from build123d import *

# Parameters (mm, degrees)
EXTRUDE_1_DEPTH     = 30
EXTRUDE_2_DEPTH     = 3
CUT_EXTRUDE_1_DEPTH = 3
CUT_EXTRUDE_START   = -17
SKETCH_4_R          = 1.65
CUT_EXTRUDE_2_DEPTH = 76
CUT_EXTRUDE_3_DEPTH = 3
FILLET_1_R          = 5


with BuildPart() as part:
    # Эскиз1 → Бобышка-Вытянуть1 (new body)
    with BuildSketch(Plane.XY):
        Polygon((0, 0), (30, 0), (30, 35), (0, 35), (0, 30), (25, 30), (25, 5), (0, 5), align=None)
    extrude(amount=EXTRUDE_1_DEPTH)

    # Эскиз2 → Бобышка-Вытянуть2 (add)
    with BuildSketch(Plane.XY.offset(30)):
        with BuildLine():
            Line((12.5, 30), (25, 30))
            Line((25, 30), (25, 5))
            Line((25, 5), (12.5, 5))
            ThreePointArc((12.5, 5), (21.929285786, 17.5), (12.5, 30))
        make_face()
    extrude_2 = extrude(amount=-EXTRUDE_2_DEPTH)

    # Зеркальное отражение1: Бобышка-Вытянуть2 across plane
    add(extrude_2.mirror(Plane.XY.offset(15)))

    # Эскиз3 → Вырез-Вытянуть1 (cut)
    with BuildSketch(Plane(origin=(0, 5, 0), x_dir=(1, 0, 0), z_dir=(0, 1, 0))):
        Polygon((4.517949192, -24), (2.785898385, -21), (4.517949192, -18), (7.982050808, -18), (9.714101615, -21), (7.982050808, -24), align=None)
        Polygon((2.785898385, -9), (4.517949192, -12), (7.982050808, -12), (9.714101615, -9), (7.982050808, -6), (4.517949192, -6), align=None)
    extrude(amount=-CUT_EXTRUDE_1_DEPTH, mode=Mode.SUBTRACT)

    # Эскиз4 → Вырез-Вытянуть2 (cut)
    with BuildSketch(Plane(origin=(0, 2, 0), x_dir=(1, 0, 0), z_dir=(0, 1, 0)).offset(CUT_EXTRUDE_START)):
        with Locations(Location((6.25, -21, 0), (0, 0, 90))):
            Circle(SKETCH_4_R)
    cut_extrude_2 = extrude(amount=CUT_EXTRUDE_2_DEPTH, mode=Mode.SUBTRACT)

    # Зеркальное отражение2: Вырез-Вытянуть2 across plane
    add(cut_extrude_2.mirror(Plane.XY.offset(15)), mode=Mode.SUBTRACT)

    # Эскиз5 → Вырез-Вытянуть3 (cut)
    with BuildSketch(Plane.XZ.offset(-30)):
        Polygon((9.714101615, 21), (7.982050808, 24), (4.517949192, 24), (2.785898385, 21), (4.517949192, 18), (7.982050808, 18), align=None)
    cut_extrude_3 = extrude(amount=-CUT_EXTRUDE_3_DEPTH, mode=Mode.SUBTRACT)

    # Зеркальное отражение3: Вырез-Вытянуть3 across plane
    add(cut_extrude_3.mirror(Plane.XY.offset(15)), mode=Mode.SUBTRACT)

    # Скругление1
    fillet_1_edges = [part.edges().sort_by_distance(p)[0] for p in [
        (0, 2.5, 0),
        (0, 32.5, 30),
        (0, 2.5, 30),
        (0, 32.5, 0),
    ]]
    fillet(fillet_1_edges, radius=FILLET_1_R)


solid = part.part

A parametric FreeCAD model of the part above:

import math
import FreeCAD as App
import Part
import Sketcher
from FreeCAD import Vector
Q = App.Units.Quantity


def edges_at(feature, points):
    """Names of the edges that pass closest to the given points."""
    edges = feature.Shape.Edges
    near = lambda p: min(range(len(edges)), key=lambda i: edges[i].distToShape(Part.Vertex(*p))[0])
    return sorted({f"Edge{near(p) + 1}" for p in points})


def add_polygon(sketch, points):
    """Adds a closed chain of lines whose ends are joined by coincident constraints."""
    first, n = sketch.GeometryCount, len(points)
    for a, b in zip(points, points[1:] + points[:1]):
        sketch.addGeometry(Part.LineSegment(App.Vector(*a, 0), App.Vector(*b, 0)), False)
    for i in range(n):
        sketch.addConstraint(Sketcher.Constraint("Coincident", first + i, 2, first + (i + 1) % n, 1))

doc = App.newDocument("Part")
body = doc.addObject("PartDesign::Body", "Body")

# Sketch on XY plane
sketch1 = body.newObject("Sketcher::SketchObject", "Sketch")
sketch1.AttachmentSupport = (doc.getObject("XY_Plane"), [""])
sketch1.MapMode = "FlatFace"
add_polygon(sketch1, [(0, 0), (30, 0), (30, 35), (0, 35), (0, 30), (25, 30), (25, 5), (0, 5)])  # lines 0-7
sketch1.addConstraint([
    Sketcher.Constraint("Horizontal", 0),
    Sketcher.Constraint("Vertical", 1),
    Sketcher.Constraint("Horizontal", 2),
    Sketcher.Constraint("Vertical", 3),
    Sketcher.Constraint("Horizontal", 4),
    Sketcher.Constraint("Vertical", 5),
    Sketcher.Constraint("Horizontal", 6),
    Sketcher.Constraint("Vertical", 7),
    Sketcher.Constraint("Coincident", 7, 2, -1, 1),
    Sketcher.Constraint("PointOnObject", 2, 2, -2),
    Sketcher.Constraint("Equal", 6, 5),
    Sketcher.Constraint("Equal", 3, 7),
    Sketcher.Constraint("DistanceX", 0, 1, 0, 2, 30.0),
    Sketcher.Constraint("DistanceX", 4, 1, 4, 2, 25.0),
    Sketcher.Constraint("DistanceY", 1, 1, 1, 2, 35.0),
])
pad1 = body.newObject("PartDesign::Pad", "Pad")
pad1.Profile = sketch1
pad1.Length = 30

# Sketch on XY plane
sketch2 = body.newObject("Sketcher::SketchObject", "Sketch001")
sketch2.AttachmentSupport = (doc.getObject("XY_Plane"), [""])
sketch2.MapMode = "FlatFace"
sketch2.AttachmentOffset = App.Placement(Vector(0, 0, 30), App.Rotation())
sketch2.addGeometry([
    Part.LineSegment(Vector(25, 30, 0), Vector(12, 30, 0)),
    Part.ArcOfCircle(Part.Circle(Vector(9, 18, 0), Vector(0, 0, 1), 13), math.radians(-74), math.radians(74)),
    Part.LineSegment(Vector(12, 5, 0), Vector(25, 5, 0)),
    Part.LineSegment(Vector(25, 5, 0), Vector(25, 30, 0)),
], False)
sketch2.addConstraint([
    Sketcher.Constraint("Coincident", 0, 2, 1, 2),
    Sketcher.Constraint("Coincident", 1, 1, 2, 1),
    Sketcher.Constraint("Coincident", 2, 2, 3, 1),
    Sketcher.Constraint("Coincident", 3, 2, 0, 1),
    Sketcher.Constraint("Horizontal", 0),
    Sketcher.Constraint("Horizontal", 2),
    Sketcher.Constraint("Vertical", 3),
    Sketcher.Constraint("Vertical", 0, 2, 1, 1),
    Sketcher.Constraint("Radius", 1, 13.0),
    Sketcher.Constraint("DistanceY", 3, 1, 3, 2, 25.0),
    Sketcher.Constraint("DistanceX", 0, 2, 0, 1, 12.5),
    Sketcher.Constraint("DistanceY", -1, 1, 0, 2, 30.0),
    Sketcher.Constraint("DistanceX", -1, 1, 2, 2, 25.0),
])
pad2 = body.newObject("PartDesign::Pad", "Pad001")
pad2.Profile = sketch2
pad2.Length = 3
pad2.Reversed = True
doc.recompute()

datumplane = body.newObject("PartDesign::Plane", "DatumPlane")
datumplane.AttachmentSupport = (doc.getObject("XY_Plane"), [""])
datumplane.MapMode = "FlatFace"
datumplane.AttachmentOffset = App.Placement(Vector(0, 0, 15), App.Rotation())
mirrored = body.newObject("PartDesign::Mirrored", "Mirrored")
mirrored.Originals = [pad2]
mirrored.MirrorPlane = (datumplane, [""])
body.Tip = mirrored

# Sketch on XZ plane
sketch3 = body.newObject("Sketcher::SketchObject", "Sketch002")
sketch3.AttachmentSupport = (doc.getObject("XZ_Plane"), [""])
sketch3.MapMode = "FlatFace"
sketch3.AttachmentOffset = App.Placement(Vector(0, 0, -5), App.Rotation())
add_polygon(sketch3, [(2.8, 21), (4.5, 24), (8, 24), (9.7, 21), (8, 18), (4.5, 18)])  # lines 0-5
add_polygon(sketch3, [(2.8, 9), (4.5, 12), (8, 12), (9.7, 9), (8, 6), (4.5, 6)])  # lines 6-11
sketch3.addConstraint([
    Sketcher.Constraint("Horizontal", 1),
    Sketcher.Constraint("Horizontal", 4),
    Sketcher.Constraint("Horizontal", 7),
    Sketcher.Constraint("Horizontal", 10),
    Sketcher.Constraint("Parallel", 0, 3),
    Sketcher.Constraint("Parallel", 2, 5),
    Sketcher.Constraint("Parallel", 3, 6),
    Sketcher.Constraint("Parallel", 5, 8),
    Sketcher.Constraint("Parallel", 6, 9),
    Sketcher.Constraint("Parallel", 8, 11),
    Sketcher.Constraint("Horizontal", 2, 2, 5, 2),
    Sketcher.Constraint("Horizontal", 8, 2, 11, 2),
    Sketcher.Constraint("Vertical", 1, 2, 3, 2),
    Sketcher.Constraint("Vertical", 0, 2, 4, 2),
    Sketcher.Constraint("Vertical", 4, 2, 6, 2),
    Sketcher.Constraint("Vertical", 3, 2, 7, 2),
    Sketcher.Constraint("Vertical", 2, 2, 8, 2),
    Sketcher.Constraint("Vertical", 7, 2, 9, 2),
    Sketcher.Constraint("Angle", 0, Q("60 deg")),
    Sketcher.Constraint("DistanceY", -1, 1, 0, 2, 24.0),
    Sketcher.Constraint("DistanceY", -1, 1, 2, 2, 21.0),
    Sketcher.Constraint("DistanceY", -1, 1, 6, 2, 12.0),
    Sketcher.Constraint("DistanceX", 1, 1, 1, 2, 3.464102),
    Sketcher.Constraint("DistanceX", -1, 1, 2, 2, 9.714102),
])
pocket1 = body.newObject("PartDesign::Pocket", "Pocket")
pocket1.Profile = sketch3
pocket1.Length = 3
pocket1.Reversed = True

# Sketch on XZ plane
sketch4 = body.newObject("Sketcher::SketchObject", "Sketch003")
sketch4.AttachmentSupport = (doc.getObject("XZ_Plane"), [""])
sketch4.MapMode = "FlatFace"
sketch4.AttachmentOffset = App.Placement(Vector(0, 0, 15), App.Rotation())
sketch4.addGeometry(Part.Circle(Vector(6.2, 21, 0), Vector(0, 0, 1), 1.6), False)
sketch4.addConstraint([
    Sketcher.Constraint("Diameter", 0, 3.3),
    Sketcher.Constraint("DistanceY", -1, 1, 0, 3, 21.0),
    Sketcher.Constraint("DistanceX", -1, 1, 0, 3, 6.25),
])
pocket2 = body.newObject("PartDesign::Pocket", "Pocket001")
pocket2.Profile = sketch4
pocket2.Length = 76
doc.recompute()

datumplane2 = body.newObject("PartDesign::Plane", "DatumPlane001")
datumplane2.AttachmentSupport = (doc.getObject("XY_Plane"), [""])
datumplane2.MapMode = "FlatFace"
datumplane2.AttachmentOffset = App.Placement(Vector(0, 0, 15), App.Rotation())
mirrored2 = body.newObject("PartDesign::Mirrored", "Mirrored001")
mirrored2.Originals = [pocket2]
mirrored2.MirrorPlane = (datumplane2, [""])
body.Tip = mirrored2

# Sketch on XZ plane
sketch5 = body.newObject("Sketcher::SketchObject", "Sketch004")
sketch5.AttachmentSupport = (doc.getObject("XZ_Plane"), [""])
sketch5.MapMode = "FlatFace"
sketch5.AttachmentOffset = App.Placement(Vector(0, 0, -30), App.Rotation())
add_polygon(sketch5, [(9.7, 21), (8, 24), (4.5, 24), (2.8, 21), (4.5, 18), (8, 18)])  # lines 0-5
sketch5.addConstraint([
    Sketcher.Constraint("Horizontal", 1),
    Sketcher.Constraint("Horizontal", 4),
    Sketcher.Constraint("Parallel", 0, 3),
    Sketcher.Constraint("Parallel", 2, 5),
    Sketcher.Constraint("Horizontal", 2, 2, 5, 2),
    Sketcher.Constraint("Vertical", 1, 2, 3, 2),
    Sketcher.Constraint("Vertical", 0, 2, 4, 2),
    Sketcher.Constraint("Angle", 0, Q("120 deg")),
    Sketcher.Constraint("DistanceY", -1, 1, 0, 2, 24.0),
    Sketcher.Constraint("DistanceY", -1, 1, 2, 2, 21.0),
    Sketcher.Constraint("DistanceX", 1, 2, 1, 1, 3.464102),
    Sketcher.Constraint("DistanceX", -1, 1, 2, 2, 2.785898),
])
pocket3 = body.newObject("PartDesign::Pocket", "Pocket002")
pocket3.Profile = sketch5
pocket3.Length = 3
doc.recompute()

datumplane3 = body.newObject("PartDesign::Plane", "DatumPlane002")
datumplane3.AttachmentSupport = (doc.getObject("XY_Plane"), [""])
datumplane3.MapMode = "FlatFace"
datumplane3.AttachmentOffset = App.Placement(Vector(0, 0, 15), App.Rotation())
mirrored3 = body.newObject("PartDesign::Mirrored", "Mirrored002")
mirrored3.Originals = [pocket3]
mirrored3.MirrorPlane = (datumplane3, [""])
body.Tip = mirrored3
doc.recompute()

fillet = body.newObject("PartDesign::Fillet", "Fillet")
fillet.Base = (mirrored3, edges_at(mirrored3, [
    (0, 2.5, 0),
    (0, 32.5, 30),
    (0, 2.5, 30),
    (0, 32.5, 0),
]))
fillet.Radius = 5

doc.recompute()
